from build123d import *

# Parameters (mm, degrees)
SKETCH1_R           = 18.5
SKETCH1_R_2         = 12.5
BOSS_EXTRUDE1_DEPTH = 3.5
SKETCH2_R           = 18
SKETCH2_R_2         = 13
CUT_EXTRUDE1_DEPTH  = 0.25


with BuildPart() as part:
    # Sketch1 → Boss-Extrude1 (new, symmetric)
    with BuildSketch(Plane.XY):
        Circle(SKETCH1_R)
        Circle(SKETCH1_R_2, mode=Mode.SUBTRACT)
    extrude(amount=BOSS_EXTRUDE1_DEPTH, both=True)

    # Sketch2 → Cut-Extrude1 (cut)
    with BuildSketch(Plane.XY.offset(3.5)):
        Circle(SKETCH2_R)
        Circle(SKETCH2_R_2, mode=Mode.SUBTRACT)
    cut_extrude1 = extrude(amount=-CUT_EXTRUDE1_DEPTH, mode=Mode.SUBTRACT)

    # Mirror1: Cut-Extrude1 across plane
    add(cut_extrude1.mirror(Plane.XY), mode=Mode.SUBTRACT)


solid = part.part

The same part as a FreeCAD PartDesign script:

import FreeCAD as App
import Part
import Sketcher

doc = App.newDocument("Part")
body = doc.addObject("PartDesign::Body", "Body")

sketch1 = body.newObject("Sketcher::SketchObject", "Sketch")
sketch1.AttachmentSupport = (doc.getObject("XY_Plane"), [""])
sketch1.MapMode = "FlatFace"
sketch1.addGeometry([
    Part.Circle(App.Vector(0, 0, 0), App.Vector(0, 0, 1), 18.5),
    Part.Circle(App.Vector(0, 0, 0), App.Vector(0, 0, 1), 12.5),
], False)
sketch1.addConstraint([
    Sketcher.Constraint("Coincident", 0, 3, -1, 1),
    Sketcher.Constraint("Coincident", 1, 3, -1, 1),
    Sketcher.Constraint("Diameter", 0, 37.0),
    Sketcher.Constraint("Diameter", 1, 25.0),
])
pad1 = body.newObject("PartDesign::Pad", "Pad")
pad1.Profile = sketch1
pad1.Length = 7
pad1.Midplane = True

sketch2 = body.newObject("Sketcher::SketchObject", "Sketch001")
sketch2.AttachmentSupport = (doc.getObject("XY_Plane"), [""])
sketch2.MapMode = "FlatFace"
sketch2.AttachmentOffset = App.Placement(App.Vector(0, 0, 3.5), App.Rotation())
sketch2.addGeometry([
    Part.Circle(App.Vector(0, 0, 0), App.Vector(0, 0, 1), 18),
    Part.Circle(App.Vector(0, 0, 0), App.Vector(0, 0, 1), 13),
], False)
sketch2.addConstraint([
    Sketcher.Constraint("Coincident", 0, 3, -1, 1),
    Sketcher.Constraint("Coincident", 1, 3, -1, 1),
    Sketcher.Constraint("Diameter", 0, 36.0),
    Sketcher.Constraint("Diameter", 1, 26.0),
])
pocket1 = body.newObject("PartDesign::Pocket", "Pocket")
pocket1.Profile = sketch2
pocket1.Length = 0.25
doc.recompute()

mirrored = body.newObject("PartDesign::Mirrored", "Mirrored")
mirrored.Originals = [pocket1]
mirrored.MirrorPlane = (doc.getObject("XY_Plane"), [""])
body.Tip = mirrored

doc.recompute()
